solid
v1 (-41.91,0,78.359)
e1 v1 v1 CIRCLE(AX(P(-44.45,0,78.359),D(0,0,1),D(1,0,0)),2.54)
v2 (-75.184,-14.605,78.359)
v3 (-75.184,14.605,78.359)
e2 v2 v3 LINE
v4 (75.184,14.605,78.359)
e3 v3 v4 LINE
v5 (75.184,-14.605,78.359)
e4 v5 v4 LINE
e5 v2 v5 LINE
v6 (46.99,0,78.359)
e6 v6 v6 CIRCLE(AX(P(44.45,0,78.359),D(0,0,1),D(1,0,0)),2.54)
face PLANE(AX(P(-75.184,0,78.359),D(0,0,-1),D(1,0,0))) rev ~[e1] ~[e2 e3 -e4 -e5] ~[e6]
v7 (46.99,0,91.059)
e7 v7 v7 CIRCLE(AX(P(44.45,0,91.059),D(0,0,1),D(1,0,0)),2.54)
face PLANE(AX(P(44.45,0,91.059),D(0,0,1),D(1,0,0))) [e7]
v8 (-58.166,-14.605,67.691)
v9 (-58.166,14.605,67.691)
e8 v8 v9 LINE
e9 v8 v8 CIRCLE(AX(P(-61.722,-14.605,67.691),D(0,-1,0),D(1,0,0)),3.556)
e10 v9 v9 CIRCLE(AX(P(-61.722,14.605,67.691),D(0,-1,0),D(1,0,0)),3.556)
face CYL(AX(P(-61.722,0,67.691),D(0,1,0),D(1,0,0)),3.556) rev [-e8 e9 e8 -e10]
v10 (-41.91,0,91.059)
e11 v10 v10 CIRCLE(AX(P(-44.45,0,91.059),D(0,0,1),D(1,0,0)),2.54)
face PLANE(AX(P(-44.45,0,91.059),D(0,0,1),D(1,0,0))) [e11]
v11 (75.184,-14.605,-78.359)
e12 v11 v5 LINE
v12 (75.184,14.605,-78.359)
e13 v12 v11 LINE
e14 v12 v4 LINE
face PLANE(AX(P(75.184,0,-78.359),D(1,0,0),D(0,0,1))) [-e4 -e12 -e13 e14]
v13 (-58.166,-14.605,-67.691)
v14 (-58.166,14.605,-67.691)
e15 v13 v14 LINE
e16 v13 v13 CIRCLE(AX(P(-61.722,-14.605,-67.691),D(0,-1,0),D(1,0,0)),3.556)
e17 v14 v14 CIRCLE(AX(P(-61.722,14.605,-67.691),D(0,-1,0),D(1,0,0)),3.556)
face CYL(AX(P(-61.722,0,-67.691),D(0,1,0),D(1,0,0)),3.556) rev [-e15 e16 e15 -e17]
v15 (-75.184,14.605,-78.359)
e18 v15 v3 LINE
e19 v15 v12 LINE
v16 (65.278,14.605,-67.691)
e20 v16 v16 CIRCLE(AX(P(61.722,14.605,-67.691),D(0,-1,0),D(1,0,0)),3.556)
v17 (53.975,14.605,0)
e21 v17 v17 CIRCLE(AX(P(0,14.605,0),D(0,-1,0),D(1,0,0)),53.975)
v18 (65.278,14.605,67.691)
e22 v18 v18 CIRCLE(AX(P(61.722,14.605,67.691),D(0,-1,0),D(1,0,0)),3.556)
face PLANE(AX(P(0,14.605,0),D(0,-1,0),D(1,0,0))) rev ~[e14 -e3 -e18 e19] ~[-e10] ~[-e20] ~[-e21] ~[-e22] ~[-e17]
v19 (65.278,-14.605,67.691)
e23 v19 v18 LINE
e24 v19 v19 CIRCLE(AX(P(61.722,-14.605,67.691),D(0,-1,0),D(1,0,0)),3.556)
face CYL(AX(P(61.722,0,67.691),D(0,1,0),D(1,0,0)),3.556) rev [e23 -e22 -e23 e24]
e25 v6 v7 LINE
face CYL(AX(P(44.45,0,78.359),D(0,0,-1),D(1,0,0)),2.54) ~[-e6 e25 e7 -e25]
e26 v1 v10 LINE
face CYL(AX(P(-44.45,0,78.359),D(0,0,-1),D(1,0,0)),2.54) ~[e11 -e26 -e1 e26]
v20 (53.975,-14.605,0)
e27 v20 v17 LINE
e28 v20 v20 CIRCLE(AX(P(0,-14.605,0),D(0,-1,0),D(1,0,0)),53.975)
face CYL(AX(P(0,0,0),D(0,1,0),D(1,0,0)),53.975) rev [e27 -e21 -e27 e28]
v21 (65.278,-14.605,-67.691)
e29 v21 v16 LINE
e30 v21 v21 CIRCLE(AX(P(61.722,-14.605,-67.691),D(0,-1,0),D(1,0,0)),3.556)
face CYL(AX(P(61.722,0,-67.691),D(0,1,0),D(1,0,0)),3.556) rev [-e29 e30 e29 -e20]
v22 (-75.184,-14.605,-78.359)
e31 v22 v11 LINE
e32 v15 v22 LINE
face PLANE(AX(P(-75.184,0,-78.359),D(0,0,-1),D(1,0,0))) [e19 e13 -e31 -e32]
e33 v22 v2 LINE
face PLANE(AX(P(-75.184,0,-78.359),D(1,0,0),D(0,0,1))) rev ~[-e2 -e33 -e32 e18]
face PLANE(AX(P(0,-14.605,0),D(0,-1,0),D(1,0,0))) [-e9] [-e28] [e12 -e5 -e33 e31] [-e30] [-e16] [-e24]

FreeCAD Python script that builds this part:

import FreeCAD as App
import Part
import Sketcher
Q = App.Units.Quantity

doc = App.newDocument("Part")
params = doc.addObject("Spreadsheet::Sheet", "Params")
for row, (alias, value) in enumerate([
    ("sketch1_diameter", "0.28 in"),
    ("sketch1_diameter2", "4.25 in"),
    ("sketch1_width", "5.92 in"),
    ("sketch1_height", "6.17 in"),
    ("pad1_length", "1.15 in"),
    ("sketch2_diameter", "0.2 in"),
    ("pad2_length", "0.5 in"),
], start=1):
    params.set(f"A{row}", alias)
    params.set(f"B{row}", "=" + value)
    params.setAlias(f"B{row}", alias)

body = doc.addObject("PartDesign::Body", "Body")

sketch1 = body.newObject("Sketcher::SketchObject", "Sketch")
sketch1.AttachmentSupport = (doc.getObject("XZ_Plane"), [""])
sketch1.MapMode = "FlatFace"
sketch1.addGeometry([
    Part.LineSegment(App.Vector(-75.184, 78.359, 0), App.Vector(-75.184, -78.359, 0)),
    Part.LineSegment(App.Vector(-75.184, -78.359, 0), App.Vector(75.184, -78.359, 0)),
    Part.LineSegment(App.Vector(75.184, -78.359, 0), App.Vector(75.184, 78.359, 0)),
    Part.LineSegment(App.Vector(75.184, 78.359, 0), App.Vector(-75.184, 78.359, 0)),
    Part.Circle(App.Vector(-61.722, -67.691, 0), App.Vector(0, 0, 1), 3.556),
    Part.Circle(App.Vector(61.722, -67.691, 0), App.Vector(0, 0, 1), 3.556),
    Part.Circle(App.Vector(-61.722, 67.691, 0), App.Vector(0, 0, 1), 3.556),
    Part.Circle(App.Vector(0, 0, 0), App.Vector(0, 0, 1), 53.975),
    Part.Circle(App.Vector(61.722, 67.691, 0), App.Vector(0, 0, 1), 3.556),
], False)
sketch1.addConstraint([
    Sketcher.Constraint("Coincident", 0, 2, 1, 1),
    Sketcher.Constraint("Coincident", 1, 2, 2, 1),
    Sketcher.Constraint("Coincident", 2, 2, 3, 1),
    Sketcher.Constraint("Coincident", 3, 2, 0, 1),
    Sketcher.Constraint("Vertical", 0),
    Sketcher.Constraint("Horizontal", 1),
    Sketcher.Constraint("Vertical", 2),
    Sketcher.Constraint("Horizontal", 3),
    Sketcher.Constraint("Coincident", 7, 3, -1, 1),
    Sketcher.Constraint("Equal", 4, 5),
    Sketcher.Constraint("Equal", 5, 6),
    Sketcher.Constraint("Equal", 6, 8),
    Sketcher.Constraint("Symmetric", 5, 3, 6, 3, -1, 1),
    Sketcher.Constraint("Symmetric", 4, 3, 8, 3, -1, 1),
    Sketcher.Constraint("Symmetric", 0, 2, 2, 2, -1, 1),
    Sketcher.Constraint("Symmetric", 4, 3, 5, 3, -2),
    Sketcher.Constraint("Diameter", 4, Q("0.28 in")),
    Sketcher.Constraint("Diameter", 7, Q("4.25 in")),
    Sketcher.Constraint("DistanceX", 1, 1, 1, 2, Q("5.92 in")),
    Sketcher.Constraint("DistanceY", 0, 2, 0, 1, Q("6.17 in")),
    Sketcher.Constraint("DistanceX", 4, 3, -1, 1, Q("2.43 in")),
    Sketcher.Constraint("DistanceY", 4, 3, 6, 3, Q("5.33 in")),
])
sketch1.setExpression("Constraints[16]", "Params.sketch1_diameter")
sketch1.setExpression("Constraints[17]", "Params.sketch1_diameter2")
sketch1.setExpression("Constraints[18]", "Params.sketch1_width")
sketch1.setExpression("Constraints[19]", "Params.sketch1_height")
pad1 = body.newObject("PartDesign::Pad", "Pad")
pad1.Profile = sketch1
pad1.setExpression("Length", "Params.pad1_length")
pad1.Midplane = True

sketch2 = body.newObject("Sketcher::SketchObject", "Sketch001")
sketch2.AttachmentSupport = (doc.getObject("XY_Plane"), [""])
sketch2.MapMode = "FlatFace"
sketch2.AttachmentOffset = App.Placement(App.Vector(0, 0, 3.085 * 25.4), App.Rotation())
sketch2.addGeometry([
    Part.Circle(App.Vector(-44.45, 0, 0), App.Vector(0, 0, 1), 2.54),
    Part.Circle(App.Vector(44.45, 0, 0), App.Vector(0, 0, 1), 2.54),
], False)
sketch2.addConstraint([
    Sketcher.Constraint("Equal", 0, 1),
    Sketcher.Constraint("Symmetric", 0, 3, 1, 3, -1, 1),
    Sketcher.Constraint("PointOnObject", 0, 3, -1),
    Sketcher.Constraint("Diameter", 0, Q("0.2 in")),
    Sketcher.Constraint("DistanceX", 0, 3, 1, 3, Q("3.5 in")),
])
sketch2.setExpression("Constraints[3]", "Params.sketch2_diameter")
pad2 = body.newObject("PartDesign::Pad", "Pad001")
pad2.Profile = sketch2
pad2.setExpression("Length", "Params.pad2_length")

doc.recompute()
